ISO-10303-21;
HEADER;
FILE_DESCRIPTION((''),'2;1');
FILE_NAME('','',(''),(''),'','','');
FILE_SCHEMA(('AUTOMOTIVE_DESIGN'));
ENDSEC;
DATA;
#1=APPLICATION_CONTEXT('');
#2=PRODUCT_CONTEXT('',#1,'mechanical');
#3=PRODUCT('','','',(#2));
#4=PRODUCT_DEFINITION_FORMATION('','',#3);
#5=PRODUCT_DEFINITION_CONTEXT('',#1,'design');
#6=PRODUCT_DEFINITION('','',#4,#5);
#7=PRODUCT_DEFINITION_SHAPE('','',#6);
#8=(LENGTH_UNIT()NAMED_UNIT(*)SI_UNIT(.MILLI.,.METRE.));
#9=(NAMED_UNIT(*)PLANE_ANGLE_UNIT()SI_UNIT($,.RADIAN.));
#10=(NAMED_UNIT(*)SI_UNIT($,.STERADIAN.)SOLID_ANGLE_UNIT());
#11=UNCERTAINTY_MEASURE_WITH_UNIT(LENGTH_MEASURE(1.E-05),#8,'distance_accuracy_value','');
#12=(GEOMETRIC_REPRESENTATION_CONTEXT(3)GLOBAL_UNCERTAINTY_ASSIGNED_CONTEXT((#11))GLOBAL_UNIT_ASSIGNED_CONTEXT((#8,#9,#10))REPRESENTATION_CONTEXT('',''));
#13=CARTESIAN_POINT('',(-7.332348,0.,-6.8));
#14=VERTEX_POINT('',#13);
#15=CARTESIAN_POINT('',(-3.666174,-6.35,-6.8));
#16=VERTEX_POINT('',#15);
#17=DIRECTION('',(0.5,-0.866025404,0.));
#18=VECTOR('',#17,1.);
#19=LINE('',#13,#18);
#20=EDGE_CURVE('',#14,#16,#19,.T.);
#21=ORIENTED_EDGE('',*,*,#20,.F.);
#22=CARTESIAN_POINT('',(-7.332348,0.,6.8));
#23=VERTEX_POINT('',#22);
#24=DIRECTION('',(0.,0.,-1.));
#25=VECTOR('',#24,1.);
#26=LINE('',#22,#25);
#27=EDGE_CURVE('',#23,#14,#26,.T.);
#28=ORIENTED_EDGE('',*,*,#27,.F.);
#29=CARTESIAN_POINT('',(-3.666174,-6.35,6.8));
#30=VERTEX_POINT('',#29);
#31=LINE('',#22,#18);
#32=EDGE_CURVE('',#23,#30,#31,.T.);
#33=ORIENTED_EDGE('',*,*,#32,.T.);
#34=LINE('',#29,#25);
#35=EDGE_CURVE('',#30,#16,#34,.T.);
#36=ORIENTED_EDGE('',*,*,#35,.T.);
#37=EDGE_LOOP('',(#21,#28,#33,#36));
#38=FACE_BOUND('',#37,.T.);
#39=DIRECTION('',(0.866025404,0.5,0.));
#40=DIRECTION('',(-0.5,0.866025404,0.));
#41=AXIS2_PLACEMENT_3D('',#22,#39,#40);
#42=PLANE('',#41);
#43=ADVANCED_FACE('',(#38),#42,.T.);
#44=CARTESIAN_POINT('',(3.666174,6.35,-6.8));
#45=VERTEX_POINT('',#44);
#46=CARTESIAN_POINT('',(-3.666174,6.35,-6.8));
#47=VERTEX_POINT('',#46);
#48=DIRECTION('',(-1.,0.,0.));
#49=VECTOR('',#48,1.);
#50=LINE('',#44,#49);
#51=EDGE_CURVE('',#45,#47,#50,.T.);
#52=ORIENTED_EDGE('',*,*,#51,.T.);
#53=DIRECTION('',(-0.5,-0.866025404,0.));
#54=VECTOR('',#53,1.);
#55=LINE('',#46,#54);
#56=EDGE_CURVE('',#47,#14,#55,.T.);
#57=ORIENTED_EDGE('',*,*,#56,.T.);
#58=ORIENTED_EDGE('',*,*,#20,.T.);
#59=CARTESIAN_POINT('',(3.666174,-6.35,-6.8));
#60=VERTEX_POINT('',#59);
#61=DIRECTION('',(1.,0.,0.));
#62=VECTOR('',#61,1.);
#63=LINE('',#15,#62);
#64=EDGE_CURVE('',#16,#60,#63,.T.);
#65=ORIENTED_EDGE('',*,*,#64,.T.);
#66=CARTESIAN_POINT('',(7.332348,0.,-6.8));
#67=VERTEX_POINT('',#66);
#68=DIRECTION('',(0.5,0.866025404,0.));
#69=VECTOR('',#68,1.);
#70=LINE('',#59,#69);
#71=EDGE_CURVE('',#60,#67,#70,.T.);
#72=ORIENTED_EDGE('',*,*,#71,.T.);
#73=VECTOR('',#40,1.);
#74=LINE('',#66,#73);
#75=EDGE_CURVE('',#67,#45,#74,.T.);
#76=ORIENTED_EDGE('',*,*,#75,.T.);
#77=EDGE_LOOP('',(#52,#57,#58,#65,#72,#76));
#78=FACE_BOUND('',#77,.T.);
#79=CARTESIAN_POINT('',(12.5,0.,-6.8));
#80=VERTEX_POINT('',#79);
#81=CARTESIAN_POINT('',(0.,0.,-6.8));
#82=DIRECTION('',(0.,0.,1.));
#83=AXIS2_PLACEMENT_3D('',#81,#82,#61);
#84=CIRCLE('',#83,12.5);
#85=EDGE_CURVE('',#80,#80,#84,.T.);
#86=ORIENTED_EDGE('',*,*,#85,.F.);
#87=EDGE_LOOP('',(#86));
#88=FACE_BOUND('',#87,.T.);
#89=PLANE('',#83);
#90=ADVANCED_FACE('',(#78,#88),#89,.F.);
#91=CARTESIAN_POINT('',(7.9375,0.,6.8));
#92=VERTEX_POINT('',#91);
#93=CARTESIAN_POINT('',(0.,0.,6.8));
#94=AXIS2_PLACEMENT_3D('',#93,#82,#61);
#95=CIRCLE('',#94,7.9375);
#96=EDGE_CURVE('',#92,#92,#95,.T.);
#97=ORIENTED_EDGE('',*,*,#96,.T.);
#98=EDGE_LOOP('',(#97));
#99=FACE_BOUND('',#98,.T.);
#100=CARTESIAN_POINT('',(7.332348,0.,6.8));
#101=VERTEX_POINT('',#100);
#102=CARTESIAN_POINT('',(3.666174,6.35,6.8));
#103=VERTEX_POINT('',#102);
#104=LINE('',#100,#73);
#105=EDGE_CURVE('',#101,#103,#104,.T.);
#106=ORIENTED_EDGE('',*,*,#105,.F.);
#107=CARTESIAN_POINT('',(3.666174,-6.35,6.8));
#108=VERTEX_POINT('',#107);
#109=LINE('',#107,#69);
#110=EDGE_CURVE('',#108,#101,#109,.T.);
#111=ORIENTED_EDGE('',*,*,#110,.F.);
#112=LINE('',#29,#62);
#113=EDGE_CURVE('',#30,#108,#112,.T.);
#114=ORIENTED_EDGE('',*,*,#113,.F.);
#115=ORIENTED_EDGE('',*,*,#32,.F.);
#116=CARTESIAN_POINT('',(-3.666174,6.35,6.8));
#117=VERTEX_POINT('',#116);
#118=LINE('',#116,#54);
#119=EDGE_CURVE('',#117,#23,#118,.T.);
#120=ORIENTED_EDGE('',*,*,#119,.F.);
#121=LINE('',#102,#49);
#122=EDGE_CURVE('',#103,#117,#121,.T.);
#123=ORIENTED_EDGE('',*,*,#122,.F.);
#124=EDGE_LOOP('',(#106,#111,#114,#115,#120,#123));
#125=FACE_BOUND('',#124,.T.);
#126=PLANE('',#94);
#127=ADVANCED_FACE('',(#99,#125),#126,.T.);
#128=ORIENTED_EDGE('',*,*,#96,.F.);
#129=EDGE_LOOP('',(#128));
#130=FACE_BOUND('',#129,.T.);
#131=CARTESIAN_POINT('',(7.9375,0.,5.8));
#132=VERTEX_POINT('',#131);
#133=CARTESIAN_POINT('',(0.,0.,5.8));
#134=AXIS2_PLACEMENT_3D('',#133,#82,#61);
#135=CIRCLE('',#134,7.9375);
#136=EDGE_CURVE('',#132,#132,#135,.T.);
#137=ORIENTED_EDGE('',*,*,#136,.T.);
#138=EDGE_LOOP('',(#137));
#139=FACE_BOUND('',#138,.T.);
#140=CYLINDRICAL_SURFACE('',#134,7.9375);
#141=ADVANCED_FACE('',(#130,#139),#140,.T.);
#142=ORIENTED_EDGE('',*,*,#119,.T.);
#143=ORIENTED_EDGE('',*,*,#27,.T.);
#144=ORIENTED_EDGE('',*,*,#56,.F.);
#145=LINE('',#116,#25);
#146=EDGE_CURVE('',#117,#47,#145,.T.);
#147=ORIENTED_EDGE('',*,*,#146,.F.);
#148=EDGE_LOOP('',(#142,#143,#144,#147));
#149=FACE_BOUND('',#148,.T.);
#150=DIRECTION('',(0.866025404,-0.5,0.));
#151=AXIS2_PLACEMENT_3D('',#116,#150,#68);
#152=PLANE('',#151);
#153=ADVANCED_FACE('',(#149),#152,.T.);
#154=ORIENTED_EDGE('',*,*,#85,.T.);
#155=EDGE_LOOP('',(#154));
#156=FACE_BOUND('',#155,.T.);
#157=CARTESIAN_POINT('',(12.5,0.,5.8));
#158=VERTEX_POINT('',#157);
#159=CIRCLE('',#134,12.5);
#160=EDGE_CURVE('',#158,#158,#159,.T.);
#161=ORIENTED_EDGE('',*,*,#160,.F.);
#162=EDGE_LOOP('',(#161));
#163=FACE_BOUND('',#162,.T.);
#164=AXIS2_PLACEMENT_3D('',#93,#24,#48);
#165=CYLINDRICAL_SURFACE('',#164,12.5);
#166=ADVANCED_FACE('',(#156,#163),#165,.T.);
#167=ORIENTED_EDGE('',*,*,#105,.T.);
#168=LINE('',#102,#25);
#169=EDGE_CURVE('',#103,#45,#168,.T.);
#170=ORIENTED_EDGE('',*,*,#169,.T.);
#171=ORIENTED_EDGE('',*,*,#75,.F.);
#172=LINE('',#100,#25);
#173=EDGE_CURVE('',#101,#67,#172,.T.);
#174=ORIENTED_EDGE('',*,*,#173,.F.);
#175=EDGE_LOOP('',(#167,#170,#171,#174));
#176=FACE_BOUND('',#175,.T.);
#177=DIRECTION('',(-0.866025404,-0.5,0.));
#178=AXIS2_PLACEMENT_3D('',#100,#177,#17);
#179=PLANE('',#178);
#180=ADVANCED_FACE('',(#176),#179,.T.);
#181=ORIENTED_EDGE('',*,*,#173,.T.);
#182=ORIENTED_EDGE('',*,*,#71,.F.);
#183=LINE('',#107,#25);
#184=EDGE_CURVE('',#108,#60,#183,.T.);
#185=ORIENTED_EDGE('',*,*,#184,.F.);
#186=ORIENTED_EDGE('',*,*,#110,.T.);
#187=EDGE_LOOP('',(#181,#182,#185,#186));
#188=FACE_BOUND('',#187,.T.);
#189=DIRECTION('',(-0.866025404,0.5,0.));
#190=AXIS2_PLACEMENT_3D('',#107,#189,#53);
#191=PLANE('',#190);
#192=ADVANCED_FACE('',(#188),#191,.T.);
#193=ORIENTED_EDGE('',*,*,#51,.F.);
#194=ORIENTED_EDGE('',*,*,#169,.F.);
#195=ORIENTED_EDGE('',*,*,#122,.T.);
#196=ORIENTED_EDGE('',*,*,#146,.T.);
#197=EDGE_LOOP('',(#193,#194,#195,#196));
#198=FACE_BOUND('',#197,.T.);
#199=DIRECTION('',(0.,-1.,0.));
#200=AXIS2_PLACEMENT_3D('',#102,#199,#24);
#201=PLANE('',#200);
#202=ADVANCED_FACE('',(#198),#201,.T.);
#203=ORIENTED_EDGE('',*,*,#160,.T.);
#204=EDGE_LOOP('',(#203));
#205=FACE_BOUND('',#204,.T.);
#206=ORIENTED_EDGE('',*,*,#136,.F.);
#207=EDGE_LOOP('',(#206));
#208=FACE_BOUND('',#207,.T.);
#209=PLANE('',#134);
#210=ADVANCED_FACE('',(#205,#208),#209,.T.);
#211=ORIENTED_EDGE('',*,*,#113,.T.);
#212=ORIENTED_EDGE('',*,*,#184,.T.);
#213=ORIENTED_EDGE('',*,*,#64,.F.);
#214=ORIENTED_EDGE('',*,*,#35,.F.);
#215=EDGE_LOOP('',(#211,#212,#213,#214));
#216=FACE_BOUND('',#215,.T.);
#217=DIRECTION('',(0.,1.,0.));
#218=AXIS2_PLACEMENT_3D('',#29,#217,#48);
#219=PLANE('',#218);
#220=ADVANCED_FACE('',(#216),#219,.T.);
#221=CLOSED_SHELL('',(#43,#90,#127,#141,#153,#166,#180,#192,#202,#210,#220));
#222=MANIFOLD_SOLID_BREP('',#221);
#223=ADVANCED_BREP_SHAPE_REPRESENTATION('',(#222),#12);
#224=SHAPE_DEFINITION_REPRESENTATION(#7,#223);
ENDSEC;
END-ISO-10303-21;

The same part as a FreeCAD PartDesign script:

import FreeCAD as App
import Part
import Sketcher
from FreeCAD import Vector
Q = App.Units.Quantity


def add_polygon(sketch, points):
    """Adds a closed chain of lines whose ends are joined by coincident constraints."""
    first, n = sketch.GeometryCount, len(points)
    for a, b in zip(points, points[1:] + points[:1]):
        sketch.addGeometry(Part.LineSegment(App.Vector(*a, 0), App.Vector(*b, 0)), False)
    for i in range(n):
        sketch.addConstraint(Sketcher.Constraint("Coincident", first + i, 2, first + (i + 1) % n, 1))

doc = App.newDocument("Part")
body = doc.addObject("PartDesign::Body", "Body")

# Sketch on XY plane
sketch1 = body.newObject("Sketcher::SketchObject", "Sketch")
sketch1.AttachmentSupport = (doc.getObject("XY_Plane"), [""])
sketch1.MapMode = "FlatFace"
sketch1.addGeometry(Part.Circle(Vector(0, 0, 0), Vector(0, 0, 1), 12.5), False)  # 0
add_polygon(sketch1, [(3.666174, 6.35), (7.332348, 0), (3.666174, -6.35), (-3.666174, -6.35), (-7.332348, 0), (-3.666174, 6.35)])  # lines 1-6
sketch1.addConstraint([
    Sketcher.Constraint("Horizontal", 3),
    Sketcher.Constraint("Horizontal", 6),
    Sketcher.Constraint("Coincident", 0, 3, -1, 1),
    Sketcher.Constraint("Symmetric", 1, 2, 4, 2, -1, 1),
    Sketcher.Constraint("Symmetric", 2, 2, 5, 2, -1, 1),
    Sketcher.Constraint("PointOnObject", 1, 2, -1),
    Sketcher.Constraint("Parallel", 1, 4),
    Sketcher.Constraint("Vertical", 3, 2, 5, 2),
    Sketcher.Constraint("Diameter", 0, 25.0),
    Sketcher.Constraint("Angle", 1, Q("-60 deg")),
    Sketcher.Constraint("DistanceY", 3, 2, 5, 2, 12.7),
    Sketcher.Constraint("DistanceX", 3, 2, 3, 1, 7.332348),
])
pad1 = body.newObject("PartDesign::Pad", "Pad")
pad1.Profile = sketch1
pad1.Length = 13.6
pad1.Midplane = True

# Sketch on XY plane
sketch2 = body.newObject("Sketcher::SketchObject", "Sketch001")
sketch2.AttachmentSupport = (doc.getObject("XY_Plane"), [""])
sketch2.MapMode = "FlatFace"
sketch2.AttachmentOffset = App.Placement(Vector(0, 0, 6.8), App.Rotation())
sketch2.addGeometry([
    Part.Circle(Vector(0, 0, 0), Vector(0, 0, 1), 12.5),
    Part.Circle(Vector(0, 0, 0), Vector(0, 0, 1), 7.9375),
], False)
sketch2.addConstraint([
    Sketcher.Constraint("Coincident", 0, 3, -1, 1),
    Sketcher.Constraint("Coincident", 1, 3, -1, 1),
    Sketcher.Constraint("Diameter", 0, 25.0),
    Sketcher.Constraint("Diameter", 1, 15.875),
])
pocket1 = body.newObject("PartDesign::Pocket", "Pocket")
pocket1.Profile = sketch2
pocket1.Length = 1

doc.recompute()
